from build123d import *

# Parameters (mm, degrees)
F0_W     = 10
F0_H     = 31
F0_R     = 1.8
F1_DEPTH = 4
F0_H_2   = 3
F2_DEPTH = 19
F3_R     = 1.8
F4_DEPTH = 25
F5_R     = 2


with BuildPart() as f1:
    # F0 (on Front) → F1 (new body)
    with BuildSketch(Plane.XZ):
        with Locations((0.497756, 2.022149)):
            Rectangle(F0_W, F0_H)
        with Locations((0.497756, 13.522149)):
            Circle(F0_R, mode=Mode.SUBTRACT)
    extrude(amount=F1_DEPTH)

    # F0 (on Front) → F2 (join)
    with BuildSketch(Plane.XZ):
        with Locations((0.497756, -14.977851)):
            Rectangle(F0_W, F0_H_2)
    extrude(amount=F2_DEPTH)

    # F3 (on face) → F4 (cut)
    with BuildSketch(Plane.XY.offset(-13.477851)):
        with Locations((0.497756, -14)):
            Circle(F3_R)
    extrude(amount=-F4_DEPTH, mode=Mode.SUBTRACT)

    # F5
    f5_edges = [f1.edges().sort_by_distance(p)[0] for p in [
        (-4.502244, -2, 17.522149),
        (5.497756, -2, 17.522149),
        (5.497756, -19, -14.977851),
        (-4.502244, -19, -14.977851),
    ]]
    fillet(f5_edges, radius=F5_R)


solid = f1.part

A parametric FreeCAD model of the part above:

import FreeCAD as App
import Part
import Sketcher
Q = App.Units.Quantity


def edges_at(feature, points):
    """Names of the edges that pass closest to the given points."""
    edges = feature.Shape.Edges
    near = lambda p: min(range(len(edges)), key=lambda i: edges[i].distToShape(Part.Vertex(*p))[0])
    return sorted({f"Edge{near(p) + 1}" for p in points})

doc = App.newDocument("Part")
body = doc.addObject("PartDesign::Body", "Body")

# Sketch on XZ plane
sketch1 = body.newObject("Sketcher::SketchObject", "Sketch")
sketch1.AttachmentSupport = (doc.getObject("XZ_Plane"), [""])
sketch1.MapMode = "FlatFace"
sketch1.addGeometry(Part.LineSegment(App.Vector(-4.5, 17.5, 0), App.Vector(-4.5, -13.5, 0)), False)
sketch1.addGeometry(Part.LineSegment(App.Vector(-4.5, -13.5, 0), App.Vector(5.5, -13.5, 0)), False)
sketch1.addGeometry(Part.LineSegment(App.Vector(5.5, -13.5, 0), App.Vector(5.5, 17.5, 0)), False)
sketch1.addGeometry(Part.LineSegment(App.Vector(5.5, 17.5, 0), App.Vector(-4.5, 17.5, 0)), False)
sketch1.addGeometry(Part.Circle(App.Vector(0.5, 13.5, 0), App.Vector(0, 0, 1), 1.8), False)
sketch1.addConstraint(Sketcher.Constraint("Coincident", 0, 2, 1, 1))
sketch1.addConstraint(Sketcher.Constraint("Coincident", 1, 2, 2, 1))
sketch1.addConstraint(Sketcher.Constraint("Coincident", 2, 2, 3, 1))
sketch1.addConstraint(Sketcher.Constraint("Coincident", 3, 2, 0, 1))
sketch1.addConstraint(Sketcher.Constraint("Vertical", 0))
sketch1.addConstraint(Sketcher.Constraint("Horizontal", 1))
sketch1.addConstraint(Sketcher.Constraint("Vertical", 2))
sketch1.addConstraint(Sketcher.Constraint("Horizontal", 3))
sketch1.addConstraint(Sketcher.Constraint("Diameter", 4, Q("3.6 mm")))
sketch1.addConstraint(Sketcher.Constraint("DistanceX", 1, 1, 1, 2, Q("10 mm")))
sketch1.addConstraint(Sketcher.Constraint("DistanceY", 0, 2, 0, 1, Q("31 mm")))
sketch1.addConstraint(Sketcher.Constraint("DistanceX", 0, 2, 4, 3, Q("5 mm")))
sketch1.addConstraint(Sketcher.Constraint("DistanceY", 0, 2, 4, 3, Q("27 mm")))
sketch1.addConstraint(Sketcher.Constraint("DistanceY", -1, 1, 4, 3, Q("13.522149 mm")))
sketch1.addConstraint(Sketcher.Constraint("DistanceX", -1, 1, 4, 3, Q("0.497756 mm")))
pad1 = body.newObject("PartDesign::Pad", "Pad")
pad1.Profile = sketch1
pad1.Length = 4

# Sketch on XZ plane
sketch2 = body.newObject("Sketcher::SketchObject", "Sketch001")
sketch2.AttachmentSupport = (doc.getObject("XZ_Plane"), [""])
sketch2.MapMode = "FlatFace"
sketch2.addGeometry(Part.LineSegment(App.Vector(-4.5, -13.5, 0), App.Vector(-4.5, -16.5, 0)), False)
sketch2.addGeometry(Part.LineSegment(App.Vector(-4.5, -16.5, 0), App.Vector(5.5, -16.5, 0)), False)
sketch2.addGeometry(Part.LineSegment(App.Vector(5.5, -16.5, 0), App.Vector(5.5, -13.5, 0)), False)
sketch2.addGeometry(Part.LineSegment(App.Vector(5.5, -13.5, 0), App.Vector(-4.5, -13.5, 0)), False)
sketch2.addConstraint(Sketcher.Constraint("Coincident", 0, 2, 1, 1))
sketch2.addConstraint(Sketcher.Constraint("Coincident", 1, 2, 2, 1))
sketch2.addConstraint(Sketcher.Constraint("Coincident", 2, 2, 3, 1))
sketch2.addConstraint(Sketcher.Constraint("Coincident", 3, 2, 0, 1))
sketch2.addConstraint(Sketcher.Constraint("Vertical", 0))
sketch2.addConstraint(Sketcher.Constraint("Horizontal", 1))
sketch2.addConstraint(Sketcher.Constraint("Vertical", 2))
sketch2.addConstraint(Sketcher.Constraint("Horizontal", 3))
sketch2.addConstraint(Sketcher.Constraint("DistanceX", 1, 1, 1, 2, Q("10 mm")))
sketch2.addConstraint(Sketcher.Constraint("DistanceY", 0, 2, 0, 1, Q("3 mm")))
sketch2.addConstraint(Sketcher.Constraint("DistanceY", 0, 2, -1, 1, Q("16.477851 mm")))
sketch2.addConstraint(Sketcher.Constraint("DistanceX", 0, 2, -1, 1, Q("4.502244 mm")))
pad2 = body.newObject("PartDesign::Pad", "Pad001")
pad2.Profile = sketch2
pad2.Length = 19

# Sketch on XY plane
sketch3 = body.newObject("Sketcher::SketchObject", "Sketch002")
sketch3.AttachmentSupport = (doc.getObject("XY_Plane"), [""])
sketch3.MapMode = "FlatFace"
sketch3.AttachmentOffset = App.Placement(App.Vector(0, 0, -13.477851), App.Rotation())
sketch3.addGeometry(Part.Circle(App.Vector(0.5, -14, 0), App.Vector(0, 0, 1), 1.8), False)
sketch3.addConstraint(Sketcher.Constraint("Diameter", 0, Q("3.6 mm")))
sketch3.addConstraint(Sketcher.Constraint("DistanceY", 0, 3, -1, 1, Q("14 mm")))
sketch3.addConstraint(Sketcher.Constraint("DistanceX", -1, 1, 0, 3, Q("0.497756 mm")))
pocket1 = body.newObject("PartDesign::Pocket", "Pocket")
pocket1.Profile = sketch3
pocket1.Length = 25
doc.recompute()

fillet = body.newObject("PartDesign::Fillet", "Fillet")
fillet.Base = (pocket1, edges_at(pocket1, [
    (-4.502, -2, 17.522),
    (5.498, -2, 17.522),
    (5.498, -19, -14.978),
    (-4.502, -19, -14.978),
]))
fillet.Radius = 2

doc.recompute()
